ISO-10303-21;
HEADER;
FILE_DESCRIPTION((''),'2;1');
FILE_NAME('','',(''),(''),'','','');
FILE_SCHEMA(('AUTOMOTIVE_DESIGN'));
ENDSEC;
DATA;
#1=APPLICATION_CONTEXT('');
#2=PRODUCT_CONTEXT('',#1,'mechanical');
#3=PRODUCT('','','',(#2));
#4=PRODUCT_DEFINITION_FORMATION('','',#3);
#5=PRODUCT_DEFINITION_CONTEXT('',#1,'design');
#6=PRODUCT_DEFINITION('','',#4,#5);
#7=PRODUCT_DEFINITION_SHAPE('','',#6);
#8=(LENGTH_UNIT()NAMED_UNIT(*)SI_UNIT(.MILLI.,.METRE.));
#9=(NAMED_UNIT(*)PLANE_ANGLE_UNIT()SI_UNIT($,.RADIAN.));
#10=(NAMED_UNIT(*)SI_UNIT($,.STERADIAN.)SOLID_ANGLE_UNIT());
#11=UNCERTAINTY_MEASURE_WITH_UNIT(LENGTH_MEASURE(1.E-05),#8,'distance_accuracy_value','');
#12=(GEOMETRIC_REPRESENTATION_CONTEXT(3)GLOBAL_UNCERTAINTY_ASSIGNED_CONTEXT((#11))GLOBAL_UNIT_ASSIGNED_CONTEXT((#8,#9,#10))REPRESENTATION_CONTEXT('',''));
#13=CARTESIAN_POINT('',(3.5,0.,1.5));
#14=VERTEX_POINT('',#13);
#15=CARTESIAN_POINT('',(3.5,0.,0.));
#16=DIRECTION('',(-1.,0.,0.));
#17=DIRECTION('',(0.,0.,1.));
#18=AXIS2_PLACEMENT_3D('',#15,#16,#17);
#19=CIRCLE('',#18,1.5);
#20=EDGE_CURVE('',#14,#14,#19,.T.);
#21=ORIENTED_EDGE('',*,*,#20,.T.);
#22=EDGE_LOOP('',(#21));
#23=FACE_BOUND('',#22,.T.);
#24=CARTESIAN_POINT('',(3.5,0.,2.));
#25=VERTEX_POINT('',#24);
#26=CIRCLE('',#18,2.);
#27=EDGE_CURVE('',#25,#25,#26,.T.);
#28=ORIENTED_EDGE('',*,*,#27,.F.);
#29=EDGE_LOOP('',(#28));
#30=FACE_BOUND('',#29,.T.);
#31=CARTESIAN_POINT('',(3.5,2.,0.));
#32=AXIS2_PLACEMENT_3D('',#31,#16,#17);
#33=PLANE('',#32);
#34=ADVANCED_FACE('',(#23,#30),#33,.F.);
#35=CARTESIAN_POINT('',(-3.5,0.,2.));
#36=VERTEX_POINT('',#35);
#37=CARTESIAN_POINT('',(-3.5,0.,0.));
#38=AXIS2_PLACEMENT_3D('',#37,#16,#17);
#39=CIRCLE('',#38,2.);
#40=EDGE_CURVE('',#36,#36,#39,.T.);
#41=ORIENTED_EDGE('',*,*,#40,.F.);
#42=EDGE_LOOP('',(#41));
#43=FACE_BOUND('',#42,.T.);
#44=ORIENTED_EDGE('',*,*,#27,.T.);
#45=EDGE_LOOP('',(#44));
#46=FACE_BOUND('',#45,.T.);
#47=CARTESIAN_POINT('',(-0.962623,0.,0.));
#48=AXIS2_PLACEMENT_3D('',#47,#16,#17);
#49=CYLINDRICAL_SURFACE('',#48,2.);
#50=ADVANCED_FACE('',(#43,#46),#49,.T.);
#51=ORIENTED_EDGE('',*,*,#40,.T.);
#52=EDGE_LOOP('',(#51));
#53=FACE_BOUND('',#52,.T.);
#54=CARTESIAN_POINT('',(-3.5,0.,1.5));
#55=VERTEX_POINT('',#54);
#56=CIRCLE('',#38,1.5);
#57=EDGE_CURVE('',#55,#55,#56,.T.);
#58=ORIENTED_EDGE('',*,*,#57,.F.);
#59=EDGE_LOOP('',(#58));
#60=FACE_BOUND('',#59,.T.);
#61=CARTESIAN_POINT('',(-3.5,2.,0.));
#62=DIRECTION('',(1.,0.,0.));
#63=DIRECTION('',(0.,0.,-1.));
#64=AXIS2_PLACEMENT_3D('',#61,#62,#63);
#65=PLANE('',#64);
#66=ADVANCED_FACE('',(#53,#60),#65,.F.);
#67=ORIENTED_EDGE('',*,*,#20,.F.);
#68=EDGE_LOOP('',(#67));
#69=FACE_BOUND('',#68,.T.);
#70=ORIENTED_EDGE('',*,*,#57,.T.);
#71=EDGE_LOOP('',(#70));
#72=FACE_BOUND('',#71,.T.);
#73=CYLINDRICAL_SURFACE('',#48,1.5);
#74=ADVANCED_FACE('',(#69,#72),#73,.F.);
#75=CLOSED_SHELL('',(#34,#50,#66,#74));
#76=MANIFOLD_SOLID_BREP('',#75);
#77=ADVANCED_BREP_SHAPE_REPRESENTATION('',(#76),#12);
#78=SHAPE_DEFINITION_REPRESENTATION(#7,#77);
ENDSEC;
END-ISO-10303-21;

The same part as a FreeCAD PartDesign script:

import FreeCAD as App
import Part
import Sketcher


def add_polygon(sketch, points):
    """Adds a closed chain of lines whose ends are joined by coincident constraints."""
    first, n = sketch.GeometryCount, len(points)
    for a, b in zip(points, points[1:] + points[:1]):
        sketch.addGeometry(Part.LineSegment(App.Vector(*a, 0), App.Vector(*b, 0)), False)
    for i in range(n):
        sketch.addConstraint(Sketcher.Constraint("Coincident", first + i, 2, first + (i + 1) % n, 1))

doc = App.newDocument("Part")
body = doc.addObject("PartDesign::Body", "Body")

# Sketch on XY plane
sketch1 = body.newObject("Sketcher::SketchObject", "Sketch")
sketch1.AttachmentSupport = (doc.getObject("XY_Plane"), [""])
sketch1.MapMode = "FlatFace"
add_polygon(sketch1, [(-3.5, 2), (-3.5, 1.5), (3.5, 1.5), (3.5, 2)])  # lines 0-3
sketch1.addConstraint(Sketcher.Constraint("Vertical", 0))
sketch1.addConstraint(Sketcher.Constraint("Horizontal", 1))
sketch1.addConstraint(Sketcher.Constraint("Vertical", 2))
sketch1.addConstraint(Sketcher.Constraint("Horizontal", 3))
sketch1.addConstraint(Sketcher.Constraint("DistanceX", 1, 1, 1, 2, 7.0))
sketch1.addConstraint(Sketcher.Constraint("DistanceY", 0, 2, 0, 1, 0.5))
sketch1.addConstraint(Sketcher.Constraint("DistanceY", -1, 1, 2, 2, 2.0))
sketch1.addConstraint(Sketcher.Constraint("DistanceX", 0, 2, -1, 1, 3.5))
revolution = body.newObject("PartDesign::Revolution", "Revolution")
revolution.Profile = sketch1
revolution.ReferenceAxis = (sketch1, ["H_Axis"])
revolution.Angle = 360

doc.recompute()
